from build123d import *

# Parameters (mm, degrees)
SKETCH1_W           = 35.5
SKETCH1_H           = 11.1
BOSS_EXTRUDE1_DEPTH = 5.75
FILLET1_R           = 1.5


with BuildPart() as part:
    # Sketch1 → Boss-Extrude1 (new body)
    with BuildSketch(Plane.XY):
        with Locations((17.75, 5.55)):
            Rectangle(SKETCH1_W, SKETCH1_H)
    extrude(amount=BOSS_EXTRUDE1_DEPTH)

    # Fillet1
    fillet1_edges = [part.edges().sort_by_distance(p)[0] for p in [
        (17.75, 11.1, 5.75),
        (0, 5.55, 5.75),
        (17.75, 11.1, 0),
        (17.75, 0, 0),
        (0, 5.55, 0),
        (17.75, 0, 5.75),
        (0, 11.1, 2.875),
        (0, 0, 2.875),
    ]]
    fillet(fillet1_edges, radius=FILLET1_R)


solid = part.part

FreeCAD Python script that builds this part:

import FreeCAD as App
import Part
import Sketcher
from FreeCAD import Vector
Q = App.Units.Quantity


def edges_at(feature, points):
    """Names of the edges that pass closest to the given points."""
    edges = feature.Shape.Edges
    near = lambda p: min(range(len(edges)), key=lambda i: edges[i].distToShape(Part.Vertex(*p))[0])
    return sorted({f"Edge{near(p) + 1}" for p in points})


def add_polygon(sketch, points):
    """Adds a closed chain of lines whose ends are joined by coincident constraints."""
    first, n = sketch.GeometryCount, len(points)
    for a, b in zip(points, points[1:] + points[:1]):
        sketch.addGeometry(Part.LineSegment(App.Vector(*a, 0), App.Vector(*b, 0)), False)
    for i in range(n):
        sketch.addConstraint(Sketcher.Constraint("Coincident", first + i, 2, first + (i + 1) % n, 1))

doc = App.newDocument("Part")
body = doc.addObject("PartDesign::Body", "Body")

sketch1 = body.newObject("Sketcher::SketchObject", "Sketch")
sketch1.AttachmentSupport = (doc.getObject("XY_Plane"), [""])
sketch1.MapMode = "FlatFace"
add_polygon(sketch1, [(0, 11), (0, 0), (36, 0), (36, 11)])
sketch1.addConstraint(Sketcher.Constraint("Vertical", 0))
sketch1.addConstraint(Sketcher.Constraint("Horizontal", 1))
sketch1.addConstraint(Sketcher.Constraint("Vertical", 2))
sketch1.addConstraint(Sketcher.Constraint("Horizontal", 3))
sketch1.addConstraint(Sketcher.Constraint("Coincident", 0, 2, -1, 1))
sketch1.addConstraint(Sketcher.Constraint("DistanceX", 1, 1, 1, 2, Q("35.5 mm")))
sketch1.addConstraint(Sketcher.Constraint("DistanceY", 0, 2, 0, 1, Q("11.1 mm")))
pad1 = body.newObject("PartDesign::Pad", "Pad")
pad1.Profile = sketch1
pad1.Length = 5.75
doc.recompute()

fillet = body.newObject("PartDesign::Fillet", "Fillet")
fillet.Base = (pad1, edges_at(pad1, [
    (17.75, 11.1, 5.75),
    (0, 5.55, 5.75),
    (17.75, 11.1, 0),
    (17.75, 0, 0),
    (0, 5.55, 0),
    (17.75, 0, 5.75),
    (0, 11.1, 2.875),
    (0, 0, 2.875),
]))
fillet.Radius = 1.5

doc.recompute()
